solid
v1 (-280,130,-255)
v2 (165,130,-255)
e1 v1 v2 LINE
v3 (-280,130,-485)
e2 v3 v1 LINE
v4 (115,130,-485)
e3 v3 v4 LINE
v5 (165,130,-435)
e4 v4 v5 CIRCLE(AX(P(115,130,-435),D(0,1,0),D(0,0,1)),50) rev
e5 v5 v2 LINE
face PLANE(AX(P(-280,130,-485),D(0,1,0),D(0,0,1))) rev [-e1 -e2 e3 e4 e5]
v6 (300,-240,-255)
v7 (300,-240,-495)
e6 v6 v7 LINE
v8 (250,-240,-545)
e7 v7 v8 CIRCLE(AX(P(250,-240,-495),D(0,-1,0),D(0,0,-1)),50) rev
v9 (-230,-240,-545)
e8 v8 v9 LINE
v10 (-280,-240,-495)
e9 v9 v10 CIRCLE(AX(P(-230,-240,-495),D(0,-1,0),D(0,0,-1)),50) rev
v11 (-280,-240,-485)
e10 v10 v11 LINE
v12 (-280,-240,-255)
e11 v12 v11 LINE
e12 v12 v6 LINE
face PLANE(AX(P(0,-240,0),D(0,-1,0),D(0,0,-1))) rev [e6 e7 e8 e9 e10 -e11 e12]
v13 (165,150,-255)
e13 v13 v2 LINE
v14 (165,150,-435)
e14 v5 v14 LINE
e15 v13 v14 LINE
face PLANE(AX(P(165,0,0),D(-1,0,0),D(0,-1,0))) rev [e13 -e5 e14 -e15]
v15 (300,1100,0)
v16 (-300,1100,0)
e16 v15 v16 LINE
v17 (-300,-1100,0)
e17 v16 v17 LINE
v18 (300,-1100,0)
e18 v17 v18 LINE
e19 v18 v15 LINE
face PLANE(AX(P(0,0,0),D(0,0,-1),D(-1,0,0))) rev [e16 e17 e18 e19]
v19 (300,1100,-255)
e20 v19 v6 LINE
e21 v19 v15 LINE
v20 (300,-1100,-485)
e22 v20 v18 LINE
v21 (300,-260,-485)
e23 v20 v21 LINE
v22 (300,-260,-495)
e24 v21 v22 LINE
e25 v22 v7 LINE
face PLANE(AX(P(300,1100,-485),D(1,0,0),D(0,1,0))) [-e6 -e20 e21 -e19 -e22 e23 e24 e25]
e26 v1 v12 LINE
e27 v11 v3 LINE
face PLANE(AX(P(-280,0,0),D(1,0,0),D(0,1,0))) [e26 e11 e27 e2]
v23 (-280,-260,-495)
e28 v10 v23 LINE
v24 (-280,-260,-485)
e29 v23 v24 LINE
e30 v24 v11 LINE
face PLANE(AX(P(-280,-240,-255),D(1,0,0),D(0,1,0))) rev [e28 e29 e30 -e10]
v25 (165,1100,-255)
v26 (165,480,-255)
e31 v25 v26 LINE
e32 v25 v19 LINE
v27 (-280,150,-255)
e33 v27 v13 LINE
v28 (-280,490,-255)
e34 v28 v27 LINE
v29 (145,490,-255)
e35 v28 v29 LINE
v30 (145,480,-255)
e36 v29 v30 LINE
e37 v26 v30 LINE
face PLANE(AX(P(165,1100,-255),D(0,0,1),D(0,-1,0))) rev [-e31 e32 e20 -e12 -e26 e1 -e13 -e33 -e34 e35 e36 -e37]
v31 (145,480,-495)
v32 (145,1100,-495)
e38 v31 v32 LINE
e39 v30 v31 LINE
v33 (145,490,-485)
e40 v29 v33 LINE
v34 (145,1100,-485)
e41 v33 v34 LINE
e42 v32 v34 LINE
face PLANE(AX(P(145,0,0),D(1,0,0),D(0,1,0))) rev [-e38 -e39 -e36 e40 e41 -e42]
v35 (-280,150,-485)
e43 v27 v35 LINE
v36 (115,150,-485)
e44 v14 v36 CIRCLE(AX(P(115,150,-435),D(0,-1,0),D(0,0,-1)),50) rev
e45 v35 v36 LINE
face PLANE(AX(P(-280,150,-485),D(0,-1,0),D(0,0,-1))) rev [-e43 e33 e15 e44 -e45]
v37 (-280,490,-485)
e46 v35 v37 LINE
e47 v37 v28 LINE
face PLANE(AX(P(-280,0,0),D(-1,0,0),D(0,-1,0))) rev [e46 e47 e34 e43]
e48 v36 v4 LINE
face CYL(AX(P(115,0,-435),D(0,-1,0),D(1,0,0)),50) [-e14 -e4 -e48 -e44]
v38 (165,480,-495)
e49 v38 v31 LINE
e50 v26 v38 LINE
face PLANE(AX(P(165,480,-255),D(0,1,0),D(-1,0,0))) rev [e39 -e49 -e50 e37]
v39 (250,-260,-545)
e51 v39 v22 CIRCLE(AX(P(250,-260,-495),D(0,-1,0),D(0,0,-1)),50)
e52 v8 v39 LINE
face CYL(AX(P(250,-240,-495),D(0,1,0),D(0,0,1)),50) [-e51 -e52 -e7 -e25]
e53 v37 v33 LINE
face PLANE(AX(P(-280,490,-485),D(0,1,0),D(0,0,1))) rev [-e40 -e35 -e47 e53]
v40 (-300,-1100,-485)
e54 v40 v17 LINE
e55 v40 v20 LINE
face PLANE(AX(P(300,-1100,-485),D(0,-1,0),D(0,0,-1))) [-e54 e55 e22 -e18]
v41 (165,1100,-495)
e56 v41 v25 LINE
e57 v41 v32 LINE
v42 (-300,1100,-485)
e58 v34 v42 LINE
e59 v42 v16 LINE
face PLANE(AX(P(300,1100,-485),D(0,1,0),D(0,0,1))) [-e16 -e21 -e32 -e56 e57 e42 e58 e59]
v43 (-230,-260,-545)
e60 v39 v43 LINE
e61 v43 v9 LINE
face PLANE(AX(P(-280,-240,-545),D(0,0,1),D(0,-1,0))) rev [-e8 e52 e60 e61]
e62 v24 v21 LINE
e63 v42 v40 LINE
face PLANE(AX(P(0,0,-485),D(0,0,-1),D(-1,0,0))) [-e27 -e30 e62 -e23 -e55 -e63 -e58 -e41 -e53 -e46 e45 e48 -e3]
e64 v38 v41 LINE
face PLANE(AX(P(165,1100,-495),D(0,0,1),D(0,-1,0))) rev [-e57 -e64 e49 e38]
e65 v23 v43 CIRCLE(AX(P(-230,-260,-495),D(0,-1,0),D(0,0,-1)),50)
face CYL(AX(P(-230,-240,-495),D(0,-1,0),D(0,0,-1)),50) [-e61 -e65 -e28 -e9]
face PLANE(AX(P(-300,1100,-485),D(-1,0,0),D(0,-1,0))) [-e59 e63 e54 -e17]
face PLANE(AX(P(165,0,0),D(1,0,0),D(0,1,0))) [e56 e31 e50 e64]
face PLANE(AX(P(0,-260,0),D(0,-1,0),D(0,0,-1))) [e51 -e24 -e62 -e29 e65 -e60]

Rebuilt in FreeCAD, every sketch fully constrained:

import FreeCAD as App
import Part
import Sketcher


def edges_at(feature, points):
    """Names of the edges that pass closest to the given points."""
    edges = feature.Shape.Edges
    near = lambda p: min(range(len(edges)), key=lambda i: edges[i].distToShape(Part.Vertex(*p))[0])
    return sorted({f"Edge{near(p) + 1}" for p in points})

doc = App.newDocument("Part")
body = doc.addObject("PartDesign::Body", "Body")

# Sketch on XY plane
sketch1 = body.newObject("Sketcher::SketchObject", "Sketch")
sketch1.AttachmentSupport = (doc.getObject("XY_Plane"), [""])
sketch1.MapMode = "FlatFace"
sketch1.addGeometry(Part.LineSegment(App.Vector(-300, 1100, 0), App.Vector(-300, -1100, 0)), False)
sketch1.addGeometry(Part.LineSegment(App.Vector(-300, -1100, 0), App.Vector(300, -1100, 0)), False)
sketch1.addGeometry(Part.LineSegment(App.Vector(300, -1100, 0), App.Vector(300, 1100, 0)), False)
sketch1.addGeometry(Part.LineSegment(App.Vector(300, 1100, 0), App.Vector(-300, 1100, 0)), False)
sketch1.addConstraint(Sketcher.Constraint("Coincident", 0, 2, 1, 1))
sketch1.addConstraint(Sketcher.Constraint("Coincident", 1, 2, 2, 1))
sketch1.addConstraint(Sketcher.Constraint("Coincident", 2, 2, 3, 1))
sketch1.addConstraint(Sketcher.Constraint("Coincident", 3, 2, 0, 1))
sketch1.addConstraint(Sketcher.Constraint("Vertical", 0))
sketch1.addConstraint(Sketcher.Constraint("Horizontal", 1))
sketch1.addConstraint(Sketcher.Constraint("Vertical", 2))
sketch1.addConstraint(Sketcher.Constraint("Horizontal", 3))
sketch1.addConstraint(Sketcher.Constraint("Symmetric", 0, 2, 2, 2, -1, 1))
sketch1.addConstraint(Sketcher.Constraint("DistanceX", 1, 1, 1, 2, 600.0))
sketch1.addConstraint(Sketcher.Constraint("DistanceY", 0, 2, 0, 1, 2200.0))
pad1 = body.newObject("PartDesign::Pad", "Pad")
pad1.Profile = sketch1
pad1.Length = 485
pad1.Reversed = True

# Sketch on YZ plane
sketch2 = body.newObject("Sketcher::SketchObject", "Sketch001")
sketch2.AttachmentSupport = (doc.getObject("YZ_Plane"), [""])
sketch2.MapMode = "FlatFace"
sketch2.AttachmentOffset = App.Placement(App.Vector(0, 0, 300), App.Rotation())
sketch2.addGeometry(Part.LineSegment(App.Vector(1100, -255, 0), App.Vector(-260, -255, 0)), False)
sketch2.addGeometry(Part.LineSegment(App.Vector(-260, -255, 0), App.Vector(-260, -485, 0)), False)
sketch2.addGeometry(Part.LineSegment(App.Vector(-260, -485, 0), App.Vector(1100, -485, 0)), False)
sketch2.addGeometry(Part.LineSegment(App.Vector(1100, -485, 0), App.Vector(1100, -255, 0)), False)
sketch2.addConstraint(Sketcher.Constraint("Coincident", 0, 2, 1, 1))
sketch2.addConstraint(Sketcher.Constraint("Coincident", 1, 2, 2, 1))
sketch2.addConstraint(Sketcher.Constraint("Coincident", 2, 2, 3, 1))
sketch2.addConstraint(Sketcher.Constraint("Coincident", 3, 2, 0, 1))
sketch2.addConstraint(Sketcher.Constraint("Horizontal", 0))
sketch2.addConstraint(Sketcher.Constraint("Vertical", 1))
sketch2.addConstraint(Sketcher.Constraint("Horizontal", 2))
sketch2.addConstraint(Sketcher.Constraint("Vertical", 3))
sketch2.addConstraint(Sketcher.Constraint("DistanceX", 0, 2, 0, 1, 1360.0))
sketch2.addConstraint(Sketcher.Constraint("DistanceY", 1, 2, 1, 1, 230.0))
sketch2.addConstraint(Sketcher.Constraint("DistanceX", 0, 2, -1, 1, 260.0))
sketch2.addConstraint(Sketcher.Constraint("DistanceY", 0, 2, -1, 1, 255.0))
pocket1 = body.newObject("PartDesign::Pocket", "Pocket")
pocket1.Profile = sketch2
pocket1.Length = 135

# Sketch on YZ plane
sketch3 = body.newObject("Sketcher::SketchObject", "Sketch002")
sketch3.AttachmentSupport = (doc.getObject("YZ_Plane"), [""])
sketch3.MapMode = "FlatFace"
sketch3.AttachmentOffset = App.Placement(App.Vector(0, 0, 165), App.Rotation())
sketch3.addGeometry(Part.LineSegment(App.Vector(130, -255, 0), App.Vector(-260, -255, 0)), False)
sketch3.addGeometry(Part.LineSegment(App.Vector(-260, -255, 0), App.Vector(-260, -485, 0)), False)
sketch3.addGeometry(Part.LineSegment(App.Vector(-260, -485, 0), App.Vector(130, -485, 0)), False)
sketch3.addGeometry(Part.LineSegment(App.Vector(130, -485, 0), App.Vector(130, -255, 0)), False)
sketch3.addConstraint(Sketcher.Constraint("Coincident", 0, 2, 1, 1))
sketch3.addConstraint(Sketcher.Constraint("Coincident", 1, 2, 2, 1))
sketch3.addConstraint(Sketcher.Constraint("Coincident", 2, 2, 3, 1))
sketch3.addConstraint(Sketcher.Constraint("Coincident", 3, 2, 0, 1))
sketch3.addConstraint(Sketcher.Constraint("Horizontal", 0))
sketch3.addConstraint(Sketcher.Constraint("Vertical", 1))
sketch3.addConstraint(Sketcher.Constraint("Horizontal", 2))
sketch3.addConstraint(Sketcher.Constraint("Vertical", 3))
sketch3.addConstraint(Sketcher.Constraint("DistanceX", 0, 2, 0, 1, 390.0))
sketch3.addConstraint(Sketcher.Constraint("DistanceY", 1, 2, 1, 1, 230.0))
sketch3.addConstraint(Sketcher.Constraint("DistanceX", 0, 2, -1, 1, 260.0))
sketch3.addConstraint(Sketcher.Constraint("DistanceY", 0, 2, -1, 1, 255.0))
pocket2 = body.newObject("PartDesign::Pocket", "Pocket001")
pocket2.Profile = sketch3
pocket2.Length = 445

# Sketch on YZ plane
sketch4 = body.newObject("Sketcher::SketchObject", "Sketch003")
sketch4.AttachmentSupport = (doc.getObject("YZ_Plane"), [""])
sketch4.MapMode = "FlatFace"
sketch4.AttachmentOffset = App.Placement(App.Vector(0, 0, 165), App.Rotation())
sketch4.addGeometry(Part.LineSegment(App.Vector(490, -255, 0), App.Vector(150, -255, 0)), False)
sketch4.addGeometry(Part.LineSegment(App.Vector(150, -255, 0), App.Vector(150, -485, 0)), False)
sketch4.addGeometry(Part.LineSegment(App.Vector(150, -485, 0), App.Vector(490, -485, 0)), False)
sketch4.addGeometry(Part.LineSegment(App.Vector(490, -485, 0), App.Vector(490, -255, 0)), False)
sketch4.addConstraint(Sketcher.Constraint("Coincident", 0, 2, 1, 1))
sketch4.addConstraint(Sketcher.Constraint("Coincident", 1, 2, 2, 1))
sketch4.addConstraint(Sketcher.Constraint("Coincident", 2, 2, 3, 1))
sketch4.addConstraint(Sketcher.Constraint("Coincident", 3, 2, 0, 1))
sketch4.addConstraint(Sketcher.Constraint("Horizontal", 0))
sketch4.addConstraint(Sketcher.Constraint("Vertical", 1))
sketch4.addConstraint(Sketcher.Constraint("Horizontal", 2))
sketch4.addConstraint(Sketcher.Constraint("Vertical", 3))
sketch4.addConstraint(Sketcher.Constraint("DistanceX", 0, 2, 0, 1, 340.0))
sketch4.addConstraint(Sketcher.Constraint("DistanceY", 1, 2, 1, 1, 230.0))
sketch4.addConstraint(Sketcher.Constraint("DistanceX", -1, 1, 0, 2, 150.0))
sketch4.addConstraint(Sketcher.Constraint("DistanceY", 0, 2, -1, 1, 255.0))
pocket3 = body.newObject("PartDesign::Pocket", "Pocket002")
pocket3.Profile = sketch4
pocket3.Length = 445

# Sketch on XZ plane
sketch5 = body.newObject("Sketcher::SketchObject", "Sketch004")
sketch5.AttachmentSupport = (doc.getObject("XZ_Plane"), [""])
sketch5.MapMode = "FlatFace"
sketch5.AttachmentOffset = App.Placement(App.Vector(0, 0, 260), App.Rotation())
sketch5.addGeometry(Part.LineSegment(App.Vector(-280, -545, 0), App.Vector(-280, -255, 0)), False)
sketch5.addGeometry(Part.LineSegment(App.Vector(-280, -255, 0), App.Vector(300, -255, 0)), False)
sketch5.addGeometry(Part.LineSegment(App.Vector(300, -255, 0), App.Vector(300, -545, 0)), False)
sketch5.addGeometry(Part.LineSegment(App.Vector(300, -545, 0), App.Vector(-280, -545, 0)), False)
sketch5.addConstraint(Sketcher.Constraint("Coincident", 0, 2, 1, 1))
sketch5.addConstraint(Sketcher.Constraint("Coincident", 1, 2, 2, 1))
sketch5.addConstraint(Sketcher.Constraint("Coincident", 2, 2, 3, 1))
sketch5.addConstraint(Sketcher.Constraint("Coincident", 3, 2, 0, 1))
sketch5.addConstraint(Sketcher.Constraint("Vertical", 0))
sketch5.addConstraint(Sketcher.Constraint("Horizontal", 1))
sketch5.addConstraint(Sketcher.Constraint("Vertical", 2))
sketch5.addConstraint(Sketcher.Constraint("Horizontal", 3))
sketch5.addConstraint(Sketcher.Constraint("DistanceX", 1, 1, 1, 2, 580.0))
sketch5.addConstraint(Sketcher.Constraint("DistanceY", 0, 1, 0, 2, 290.0))
sketch5.addConstraint(Sketcher.Constraint("DistanceX", 0, 2, -1, 1, 280.0))
sketch5.addConstraint(Sketcher.Constraint("DistanceY", 0, 2, -1, 1, 255.0))
pad2 = body.newObject("PartDesign::Pad", "Pad001")
pad2.Profile = sketch5
pad2.Length = 20
pad2.Reversed = True
doc.recompute()

fillet = body.newObject("PartDesign::Fillet", "Fillet")
fillet.Base = (pad2, edges_at(pad2, [(300, -250, -545)]))
fillet.Radius = 50

# Sketch on YZ plane
sketch6 = body.newObject("Sketcher::SketchObject", "Sketch005")
sketch6.AttachmentSupport = (doc.getObject("YZ_Plane"), [""])
sketch6.MapMode = "FlatFace"
sketch6.AttachmentOffset = App.Placement(App.Vector(0, 0, 165), App.Rotation())
sketch6.addGeometry(Part.LineSegment(App.Vector(1100, -255, 0), App.Vector(490, -255, 0)), False)
sketch6.addGeometry(Part.LineSegment(App.Vector(490, -255, 0), App.Vector(490, -485, 0)), False)
sketch6.addGeometry(Part.LineSegment(App.Vector(490, -485, 0), App.Vector(1100, -485, 0)), False)
sketch6.addGeometry(Part.LineSegment(App.Vector(1100, -485, 0), App.Vector(1100, -255, 0)), False)
sketch6.addConstraint(Sketcher.Constraint("Coincident", 0, 2, 1, 1))
sketch6.addConstraint(Sketcher.Constraint("Coincident", 1, 2, 2, 1))
sketch6.addConstraint(Sketcher.Constraint("Coincident", 2, 2, 3, 1))
sketch6.addConstraint(Sketcher.Constraint("Coincident", 3, 2, 0, 1))
sketch6.addConstraint(Sketcher.Constraint("Horizontal", 0))
sketch6.addConstraint(Sketcher.Constraint("Vertical", 1))
sketch6.addConstraint(Sketcher.Constraint("Horizontal", 2))
sketch6.addConstraint(Sketcher.Constraint("Vertical", 3))
sketch6.addConstraint(Sketcher.Constraint("DistanceX", 0, 2, 0, 1, 610.0))
sketch6.addConstraint(Sketcher.Constraint("DistanceY", 1, 2, 1, 1, 230.0))
sketch6.addConstraint(Sketcher.Constraint("DistanceX", -1, 1, 0, 2, 490.0))
sketch6.addConstraint(Sketcher.Constraint("DistanceY", 0, 2, -1, 1, 255.0))
pocket4 = body.newObject("PartDesign::Pocket", "Pocket003")
pocket4.Profile = sketch6
pocket4.Length = 20

# Sketch on YZ plane
sketch7 = body.newObject("Sketcher::SketchObject", "Sketch006")
sketch7.AttachmentSupport = (doc.getObject("YZ_Plane"), [""])
sketch7.MapMode = "FlatFace"
sketch7.AttachmentOffset = App.Placement(App.Vector(0, 0, 145), App.Rotation())
sketch7.addGeometry(Part.LineSegment(App.Vector(1100, -255, 0), App.Vector(480, -255, 0)), False)
sketch7.addGeometry(Part.LineSegment(App.Vector(480, -255, 0), App.Vector(480, -495, 0)), False)
sketch7.addGeometry(Part.LineSegment(App.Vector(480, -495, 0), App.Vector(1100, -495, 0)), False)
sketch7.addGeometry(Part.LineSegment(App.Vector(1100, -495, 0), App.Vector(1100, -255, 0)), False)
sketch7.addConstraint(Sketcher.Constraint("Coincident", 0, 2, 1, 1))
sketch7.addConstraint(Sketcher.Constraint("Coincident", 1, 2, 2, 1))
sketch7.addConstraint(Sketcher.Constraint("Coincident", 2, 2, 3, 1))
sketch7.addConstraint(Sketcher.Constraint("Coincident", 3, 2, 0, 1))
sketch7.addConstraint(Sketcher.Constraint("Horizontal", 0))
sketch7.addConstraint(Sketcher.Constraint("Vertical", 1))
sketch7.addConstraint(Sketcher.Constraint("Horizontal", 2))
sketch7.addConstraint(Sketcher.Constraint("Vertical", 3))
sketch7.addConstraint(Sketcher.Constraint("DistanceX", 0, 2, 0, 1, 620.0))
sketch7.addConstraint(Sketcher.Constraint("DistanceY", 1, 2, 1, 1, 240.0))
sketch7.addConstraint(Sketcher.Constraint("DistanceX", -1, 1, 0, 2, 480.0))
sketch7.addConstraint(Sketcher.Constraint("DistanceY", 0, 2, -1, 1, 255.0))
pad3 = body.newObject("PartDesign::Pad", "Pad002")
pad3.Profile = sketch7
pad3.Length = 20
doc.recompute()

fillet2 = body.newObject("PartDesign::Fillet", "Fillet001")
fillet2.Base = (pad3, edges_at(pad3, [(-280, -250, -545)]))
fillet2.Radius = 50
doc.recompute()

fillet3 = body.newObject("PartDesign::Fillet", "Fillet002")
fillet3.Base = (fillet2, edges_at(fillet2, [(165, 140, -485)]))
fillet3.Radius = 50

doc.recompute()
